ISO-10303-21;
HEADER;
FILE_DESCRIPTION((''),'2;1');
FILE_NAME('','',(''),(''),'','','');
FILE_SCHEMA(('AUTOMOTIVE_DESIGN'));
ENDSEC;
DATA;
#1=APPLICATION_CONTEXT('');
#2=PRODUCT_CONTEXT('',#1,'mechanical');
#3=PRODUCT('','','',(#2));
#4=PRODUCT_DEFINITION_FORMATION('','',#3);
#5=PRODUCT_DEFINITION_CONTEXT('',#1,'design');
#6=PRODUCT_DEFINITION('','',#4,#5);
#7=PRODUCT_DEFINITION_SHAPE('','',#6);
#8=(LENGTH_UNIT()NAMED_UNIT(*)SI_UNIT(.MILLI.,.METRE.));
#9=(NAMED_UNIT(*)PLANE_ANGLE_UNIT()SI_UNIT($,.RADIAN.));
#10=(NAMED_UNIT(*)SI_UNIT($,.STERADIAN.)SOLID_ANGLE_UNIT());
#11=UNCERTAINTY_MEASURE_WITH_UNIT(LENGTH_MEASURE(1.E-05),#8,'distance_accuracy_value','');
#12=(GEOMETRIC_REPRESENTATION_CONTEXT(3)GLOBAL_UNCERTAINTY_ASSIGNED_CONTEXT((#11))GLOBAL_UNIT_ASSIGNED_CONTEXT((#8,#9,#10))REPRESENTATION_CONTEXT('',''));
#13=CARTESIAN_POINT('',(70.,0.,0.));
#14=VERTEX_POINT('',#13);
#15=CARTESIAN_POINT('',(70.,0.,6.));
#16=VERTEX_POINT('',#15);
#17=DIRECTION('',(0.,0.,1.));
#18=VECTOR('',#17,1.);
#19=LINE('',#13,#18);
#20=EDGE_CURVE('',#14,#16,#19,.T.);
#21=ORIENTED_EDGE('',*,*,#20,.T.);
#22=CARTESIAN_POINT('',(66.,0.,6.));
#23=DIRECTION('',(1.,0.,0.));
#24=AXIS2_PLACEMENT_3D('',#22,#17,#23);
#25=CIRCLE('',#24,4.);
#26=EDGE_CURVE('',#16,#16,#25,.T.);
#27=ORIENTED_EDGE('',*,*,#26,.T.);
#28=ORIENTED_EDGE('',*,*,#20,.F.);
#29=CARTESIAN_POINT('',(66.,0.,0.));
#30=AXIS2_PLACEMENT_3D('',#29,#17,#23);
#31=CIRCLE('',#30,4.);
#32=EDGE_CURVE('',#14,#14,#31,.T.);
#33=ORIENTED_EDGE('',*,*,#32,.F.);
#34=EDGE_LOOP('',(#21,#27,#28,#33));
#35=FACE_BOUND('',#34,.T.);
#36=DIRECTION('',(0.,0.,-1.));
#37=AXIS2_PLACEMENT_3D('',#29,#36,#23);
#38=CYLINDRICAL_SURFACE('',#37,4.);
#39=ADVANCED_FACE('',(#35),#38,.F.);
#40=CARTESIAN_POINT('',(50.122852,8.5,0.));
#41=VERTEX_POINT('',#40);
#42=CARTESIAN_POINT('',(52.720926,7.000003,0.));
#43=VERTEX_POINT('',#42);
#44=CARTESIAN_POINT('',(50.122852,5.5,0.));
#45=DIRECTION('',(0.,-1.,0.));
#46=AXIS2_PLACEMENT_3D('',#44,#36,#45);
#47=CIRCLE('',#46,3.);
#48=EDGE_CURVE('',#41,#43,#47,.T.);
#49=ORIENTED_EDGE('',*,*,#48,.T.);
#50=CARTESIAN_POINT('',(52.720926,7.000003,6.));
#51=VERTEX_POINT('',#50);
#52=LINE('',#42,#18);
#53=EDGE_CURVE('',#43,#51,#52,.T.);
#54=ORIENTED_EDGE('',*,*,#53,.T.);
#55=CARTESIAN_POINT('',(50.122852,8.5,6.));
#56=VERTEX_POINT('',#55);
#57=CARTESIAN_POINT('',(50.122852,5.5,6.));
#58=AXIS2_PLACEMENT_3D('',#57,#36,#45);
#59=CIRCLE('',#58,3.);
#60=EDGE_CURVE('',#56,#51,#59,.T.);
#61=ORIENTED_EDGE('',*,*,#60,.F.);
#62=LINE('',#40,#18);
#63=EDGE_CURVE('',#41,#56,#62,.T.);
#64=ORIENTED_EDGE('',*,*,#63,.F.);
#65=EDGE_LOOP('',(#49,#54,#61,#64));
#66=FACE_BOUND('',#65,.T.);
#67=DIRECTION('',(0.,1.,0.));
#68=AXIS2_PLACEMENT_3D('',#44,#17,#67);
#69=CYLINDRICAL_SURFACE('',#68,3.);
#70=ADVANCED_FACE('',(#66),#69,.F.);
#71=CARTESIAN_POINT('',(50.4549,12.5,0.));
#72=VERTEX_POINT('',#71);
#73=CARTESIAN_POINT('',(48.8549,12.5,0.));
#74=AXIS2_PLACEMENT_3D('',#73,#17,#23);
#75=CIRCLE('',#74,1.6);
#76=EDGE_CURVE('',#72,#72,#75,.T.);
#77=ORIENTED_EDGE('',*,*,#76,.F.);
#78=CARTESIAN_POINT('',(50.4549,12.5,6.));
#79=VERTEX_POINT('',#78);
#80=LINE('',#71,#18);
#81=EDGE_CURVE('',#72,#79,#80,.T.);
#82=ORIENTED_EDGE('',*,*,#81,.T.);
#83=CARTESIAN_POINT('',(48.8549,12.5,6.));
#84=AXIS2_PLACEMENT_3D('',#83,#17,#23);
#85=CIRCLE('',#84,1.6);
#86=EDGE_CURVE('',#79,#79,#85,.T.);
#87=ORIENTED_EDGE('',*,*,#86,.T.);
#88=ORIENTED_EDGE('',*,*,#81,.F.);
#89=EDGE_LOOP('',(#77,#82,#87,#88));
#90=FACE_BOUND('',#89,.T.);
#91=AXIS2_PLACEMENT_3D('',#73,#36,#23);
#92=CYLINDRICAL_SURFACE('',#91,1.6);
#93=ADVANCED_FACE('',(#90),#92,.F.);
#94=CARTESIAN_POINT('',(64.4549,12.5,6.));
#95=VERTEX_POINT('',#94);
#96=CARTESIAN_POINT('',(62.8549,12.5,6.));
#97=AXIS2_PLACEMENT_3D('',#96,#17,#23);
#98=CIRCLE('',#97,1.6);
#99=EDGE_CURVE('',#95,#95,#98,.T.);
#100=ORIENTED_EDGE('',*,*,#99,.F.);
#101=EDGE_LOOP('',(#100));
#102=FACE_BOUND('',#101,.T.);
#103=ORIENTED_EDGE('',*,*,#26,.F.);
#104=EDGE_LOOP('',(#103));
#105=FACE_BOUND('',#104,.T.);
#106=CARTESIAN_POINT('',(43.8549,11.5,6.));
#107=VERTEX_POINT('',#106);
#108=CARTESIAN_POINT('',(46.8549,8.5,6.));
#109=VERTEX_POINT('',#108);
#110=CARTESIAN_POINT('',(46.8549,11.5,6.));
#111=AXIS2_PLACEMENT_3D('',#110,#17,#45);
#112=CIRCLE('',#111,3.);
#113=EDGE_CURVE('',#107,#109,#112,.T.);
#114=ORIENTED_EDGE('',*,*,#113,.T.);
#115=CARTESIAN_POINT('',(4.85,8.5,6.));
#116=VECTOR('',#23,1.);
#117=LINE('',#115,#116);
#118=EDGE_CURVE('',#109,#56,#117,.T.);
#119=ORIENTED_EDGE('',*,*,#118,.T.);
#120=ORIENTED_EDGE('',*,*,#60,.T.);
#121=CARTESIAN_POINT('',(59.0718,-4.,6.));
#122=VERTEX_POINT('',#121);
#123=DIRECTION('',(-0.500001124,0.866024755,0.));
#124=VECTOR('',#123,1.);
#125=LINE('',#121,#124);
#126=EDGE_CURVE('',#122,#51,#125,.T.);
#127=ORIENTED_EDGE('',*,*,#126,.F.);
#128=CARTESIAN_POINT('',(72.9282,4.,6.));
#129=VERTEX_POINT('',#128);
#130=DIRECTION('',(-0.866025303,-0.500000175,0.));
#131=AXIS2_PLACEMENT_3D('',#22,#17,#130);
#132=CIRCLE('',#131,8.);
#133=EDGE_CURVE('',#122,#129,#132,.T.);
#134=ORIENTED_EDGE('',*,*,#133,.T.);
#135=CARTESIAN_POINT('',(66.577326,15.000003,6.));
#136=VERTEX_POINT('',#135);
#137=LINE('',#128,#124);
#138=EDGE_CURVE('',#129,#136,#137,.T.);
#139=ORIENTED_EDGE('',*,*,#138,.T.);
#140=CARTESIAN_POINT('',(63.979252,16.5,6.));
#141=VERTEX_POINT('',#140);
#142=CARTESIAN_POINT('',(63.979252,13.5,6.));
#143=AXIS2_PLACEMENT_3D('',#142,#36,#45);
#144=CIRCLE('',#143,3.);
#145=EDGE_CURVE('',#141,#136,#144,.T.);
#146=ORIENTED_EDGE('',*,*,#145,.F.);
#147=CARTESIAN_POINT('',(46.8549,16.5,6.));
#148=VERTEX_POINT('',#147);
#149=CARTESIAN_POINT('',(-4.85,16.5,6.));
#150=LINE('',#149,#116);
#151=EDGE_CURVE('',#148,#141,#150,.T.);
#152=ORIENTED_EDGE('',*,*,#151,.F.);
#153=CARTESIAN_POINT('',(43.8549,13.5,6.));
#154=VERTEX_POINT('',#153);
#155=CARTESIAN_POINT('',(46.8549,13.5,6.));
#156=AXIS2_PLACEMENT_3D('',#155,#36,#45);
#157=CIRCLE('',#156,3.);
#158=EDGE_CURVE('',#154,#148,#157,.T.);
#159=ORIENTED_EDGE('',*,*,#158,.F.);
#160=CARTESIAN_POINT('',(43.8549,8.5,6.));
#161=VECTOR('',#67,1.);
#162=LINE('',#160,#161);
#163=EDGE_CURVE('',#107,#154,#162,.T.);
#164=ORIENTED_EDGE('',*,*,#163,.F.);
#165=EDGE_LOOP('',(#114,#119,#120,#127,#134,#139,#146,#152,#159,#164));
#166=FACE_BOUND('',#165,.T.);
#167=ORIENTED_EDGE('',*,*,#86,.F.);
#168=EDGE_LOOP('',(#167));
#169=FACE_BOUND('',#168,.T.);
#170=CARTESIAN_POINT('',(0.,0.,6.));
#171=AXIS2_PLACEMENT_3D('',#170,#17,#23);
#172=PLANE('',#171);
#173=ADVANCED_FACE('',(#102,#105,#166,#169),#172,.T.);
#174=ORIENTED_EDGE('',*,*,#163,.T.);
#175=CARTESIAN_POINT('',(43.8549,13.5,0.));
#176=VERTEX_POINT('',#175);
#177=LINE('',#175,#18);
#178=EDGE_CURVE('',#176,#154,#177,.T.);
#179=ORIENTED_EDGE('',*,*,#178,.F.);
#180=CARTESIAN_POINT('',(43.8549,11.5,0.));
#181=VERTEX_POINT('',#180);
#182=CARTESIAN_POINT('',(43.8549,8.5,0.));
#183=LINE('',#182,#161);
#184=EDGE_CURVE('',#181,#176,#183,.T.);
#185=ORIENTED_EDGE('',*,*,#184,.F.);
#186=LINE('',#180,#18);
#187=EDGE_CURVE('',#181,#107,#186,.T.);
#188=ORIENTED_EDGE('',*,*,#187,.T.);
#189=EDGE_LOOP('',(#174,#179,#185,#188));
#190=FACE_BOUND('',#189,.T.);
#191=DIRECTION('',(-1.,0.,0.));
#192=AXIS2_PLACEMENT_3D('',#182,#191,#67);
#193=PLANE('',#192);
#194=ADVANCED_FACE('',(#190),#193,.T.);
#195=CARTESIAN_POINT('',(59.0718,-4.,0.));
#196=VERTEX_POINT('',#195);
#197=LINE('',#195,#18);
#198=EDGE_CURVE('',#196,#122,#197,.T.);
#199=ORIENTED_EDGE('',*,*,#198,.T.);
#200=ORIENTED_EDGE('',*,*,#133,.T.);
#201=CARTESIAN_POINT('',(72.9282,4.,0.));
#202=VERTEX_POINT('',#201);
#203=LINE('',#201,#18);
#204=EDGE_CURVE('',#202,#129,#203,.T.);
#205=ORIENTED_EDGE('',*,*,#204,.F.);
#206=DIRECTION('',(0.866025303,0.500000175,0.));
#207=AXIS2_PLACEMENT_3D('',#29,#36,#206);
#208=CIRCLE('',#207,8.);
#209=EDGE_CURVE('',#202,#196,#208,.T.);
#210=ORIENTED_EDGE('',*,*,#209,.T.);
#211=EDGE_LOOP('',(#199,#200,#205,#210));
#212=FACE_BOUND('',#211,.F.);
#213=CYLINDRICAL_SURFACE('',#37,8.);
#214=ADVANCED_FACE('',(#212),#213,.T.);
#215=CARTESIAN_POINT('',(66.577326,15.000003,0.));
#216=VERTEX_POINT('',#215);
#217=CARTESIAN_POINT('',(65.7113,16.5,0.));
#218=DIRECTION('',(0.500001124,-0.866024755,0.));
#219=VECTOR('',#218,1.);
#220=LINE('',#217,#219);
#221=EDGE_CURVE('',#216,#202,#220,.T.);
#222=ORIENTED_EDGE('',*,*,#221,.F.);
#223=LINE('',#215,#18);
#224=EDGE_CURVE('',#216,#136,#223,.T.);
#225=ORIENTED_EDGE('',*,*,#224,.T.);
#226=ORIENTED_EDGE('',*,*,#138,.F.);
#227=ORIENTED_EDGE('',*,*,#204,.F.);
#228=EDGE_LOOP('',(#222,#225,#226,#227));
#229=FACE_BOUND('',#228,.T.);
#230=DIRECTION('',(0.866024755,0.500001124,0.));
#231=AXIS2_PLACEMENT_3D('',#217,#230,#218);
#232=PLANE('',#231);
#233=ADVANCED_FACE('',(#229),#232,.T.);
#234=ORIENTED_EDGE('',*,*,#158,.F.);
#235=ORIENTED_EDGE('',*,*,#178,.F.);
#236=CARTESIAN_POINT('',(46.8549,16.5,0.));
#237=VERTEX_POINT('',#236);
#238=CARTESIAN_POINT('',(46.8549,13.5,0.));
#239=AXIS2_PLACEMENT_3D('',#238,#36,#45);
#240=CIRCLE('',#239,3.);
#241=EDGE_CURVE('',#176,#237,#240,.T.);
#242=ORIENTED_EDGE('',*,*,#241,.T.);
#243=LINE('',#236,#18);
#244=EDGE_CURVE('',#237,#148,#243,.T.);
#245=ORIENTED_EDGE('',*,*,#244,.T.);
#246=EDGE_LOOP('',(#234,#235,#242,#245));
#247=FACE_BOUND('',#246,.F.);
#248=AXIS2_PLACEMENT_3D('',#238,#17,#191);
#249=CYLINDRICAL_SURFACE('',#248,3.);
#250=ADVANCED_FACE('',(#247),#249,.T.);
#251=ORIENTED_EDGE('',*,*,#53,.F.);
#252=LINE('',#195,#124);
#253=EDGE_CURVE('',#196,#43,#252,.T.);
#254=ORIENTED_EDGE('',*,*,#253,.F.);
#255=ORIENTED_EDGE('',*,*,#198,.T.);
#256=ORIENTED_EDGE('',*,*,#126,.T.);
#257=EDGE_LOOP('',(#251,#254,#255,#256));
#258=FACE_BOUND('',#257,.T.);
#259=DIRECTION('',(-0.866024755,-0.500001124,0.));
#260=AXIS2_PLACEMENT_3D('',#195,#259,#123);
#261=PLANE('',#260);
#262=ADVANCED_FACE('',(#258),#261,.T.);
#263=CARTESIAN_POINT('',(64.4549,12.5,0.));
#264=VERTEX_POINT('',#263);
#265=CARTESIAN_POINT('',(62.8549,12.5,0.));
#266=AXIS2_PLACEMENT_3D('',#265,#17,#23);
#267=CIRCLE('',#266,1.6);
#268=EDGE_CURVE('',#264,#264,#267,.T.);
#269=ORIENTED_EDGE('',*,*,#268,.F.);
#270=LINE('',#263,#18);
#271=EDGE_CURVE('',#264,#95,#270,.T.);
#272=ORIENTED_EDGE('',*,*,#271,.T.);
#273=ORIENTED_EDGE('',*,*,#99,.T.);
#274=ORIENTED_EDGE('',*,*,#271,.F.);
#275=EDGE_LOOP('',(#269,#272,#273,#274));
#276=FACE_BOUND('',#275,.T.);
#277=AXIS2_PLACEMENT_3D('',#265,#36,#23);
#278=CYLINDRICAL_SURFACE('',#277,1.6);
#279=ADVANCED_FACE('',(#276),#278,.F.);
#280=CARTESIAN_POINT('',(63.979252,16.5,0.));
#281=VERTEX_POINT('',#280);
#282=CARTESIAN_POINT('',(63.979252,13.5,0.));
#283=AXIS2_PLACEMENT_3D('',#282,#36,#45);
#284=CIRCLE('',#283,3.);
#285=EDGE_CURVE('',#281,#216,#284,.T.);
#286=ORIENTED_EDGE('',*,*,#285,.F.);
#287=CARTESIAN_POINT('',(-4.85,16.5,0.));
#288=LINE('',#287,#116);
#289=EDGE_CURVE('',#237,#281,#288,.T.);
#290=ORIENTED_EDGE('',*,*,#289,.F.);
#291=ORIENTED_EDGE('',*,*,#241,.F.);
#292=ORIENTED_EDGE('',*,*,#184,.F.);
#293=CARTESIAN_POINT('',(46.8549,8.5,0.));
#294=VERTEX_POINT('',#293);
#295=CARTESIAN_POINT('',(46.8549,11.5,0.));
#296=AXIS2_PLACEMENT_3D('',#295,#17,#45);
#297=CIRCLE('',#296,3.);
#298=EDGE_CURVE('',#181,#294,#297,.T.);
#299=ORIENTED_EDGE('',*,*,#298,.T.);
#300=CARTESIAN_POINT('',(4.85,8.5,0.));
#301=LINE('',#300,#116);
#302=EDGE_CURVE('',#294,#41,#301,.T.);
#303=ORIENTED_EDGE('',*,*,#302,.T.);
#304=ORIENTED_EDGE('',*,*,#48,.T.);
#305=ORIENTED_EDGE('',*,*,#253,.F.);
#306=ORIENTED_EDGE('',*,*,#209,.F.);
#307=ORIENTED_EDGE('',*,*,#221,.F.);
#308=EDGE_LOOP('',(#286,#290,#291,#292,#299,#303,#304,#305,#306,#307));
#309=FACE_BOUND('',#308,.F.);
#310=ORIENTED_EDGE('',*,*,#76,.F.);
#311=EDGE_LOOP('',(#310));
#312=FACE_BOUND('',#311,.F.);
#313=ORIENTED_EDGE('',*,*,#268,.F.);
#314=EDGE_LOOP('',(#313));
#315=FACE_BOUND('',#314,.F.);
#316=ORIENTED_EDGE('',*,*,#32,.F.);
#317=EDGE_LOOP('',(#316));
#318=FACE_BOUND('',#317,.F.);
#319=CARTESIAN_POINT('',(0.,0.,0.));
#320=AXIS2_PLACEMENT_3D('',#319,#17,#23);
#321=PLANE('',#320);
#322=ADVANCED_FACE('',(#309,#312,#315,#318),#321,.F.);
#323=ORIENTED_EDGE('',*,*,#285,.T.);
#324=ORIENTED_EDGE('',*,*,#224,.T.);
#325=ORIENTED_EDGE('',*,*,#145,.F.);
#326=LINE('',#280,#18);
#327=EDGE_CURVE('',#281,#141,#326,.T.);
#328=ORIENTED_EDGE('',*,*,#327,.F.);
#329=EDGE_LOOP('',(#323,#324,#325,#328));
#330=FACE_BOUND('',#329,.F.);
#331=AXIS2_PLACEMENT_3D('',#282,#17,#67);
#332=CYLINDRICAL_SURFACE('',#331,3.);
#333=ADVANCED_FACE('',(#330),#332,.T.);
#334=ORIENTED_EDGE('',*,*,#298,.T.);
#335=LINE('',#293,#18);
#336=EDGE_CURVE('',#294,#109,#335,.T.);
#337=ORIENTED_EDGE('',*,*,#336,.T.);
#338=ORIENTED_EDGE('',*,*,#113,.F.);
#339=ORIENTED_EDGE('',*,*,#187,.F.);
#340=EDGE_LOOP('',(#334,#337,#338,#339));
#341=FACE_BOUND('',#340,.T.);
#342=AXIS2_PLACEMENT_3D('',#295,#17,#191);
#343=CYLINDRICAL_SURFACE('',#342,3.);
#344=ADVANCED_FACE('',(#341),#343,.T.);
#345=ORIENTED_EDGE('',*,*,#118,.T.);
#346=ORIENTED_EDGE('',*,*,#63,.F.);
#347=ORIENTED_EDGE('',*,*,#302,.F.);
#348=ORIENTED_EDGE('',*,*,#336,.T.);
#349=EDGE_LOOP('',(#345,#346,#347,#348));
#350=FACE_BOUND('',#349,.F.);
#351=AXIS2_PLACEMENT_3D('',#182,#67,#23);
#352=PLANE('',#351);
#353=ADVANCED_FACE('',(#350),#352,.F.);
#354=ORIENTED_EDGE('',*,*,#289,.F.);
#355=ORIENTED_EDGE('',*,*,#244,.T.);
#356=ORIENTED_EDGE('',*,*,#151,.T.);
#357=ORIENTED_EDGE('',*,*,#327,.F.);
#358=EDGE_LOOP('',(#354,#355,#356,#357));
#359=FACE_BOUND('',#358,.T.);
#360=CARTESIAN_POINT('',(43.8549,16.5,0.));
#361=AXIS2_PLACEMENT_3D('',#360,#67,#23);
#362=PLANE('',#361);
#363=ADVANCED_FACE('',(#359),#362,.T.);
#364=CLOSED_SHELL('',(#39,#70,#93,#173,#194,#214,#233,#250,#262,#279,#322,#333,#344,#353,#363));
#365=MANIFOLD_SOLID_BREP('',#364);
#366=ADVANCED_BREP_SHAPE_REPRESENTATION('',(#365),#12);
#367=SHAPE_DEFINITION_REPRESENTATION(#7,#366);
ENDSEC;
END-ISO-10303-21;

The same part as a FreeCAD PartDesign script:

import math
import FreeCAD as App
import Part
import Sketcher
Q = App.Units.Quantity


def edges_at(feature, points):
    """Names of the edges that pass closest to the given points."""
    edges = feature.Shape.Edges
    near = lambda p: min(range(len(edges)), key=lambda i: edges[i].distToShape(Part.Vertex(*p))[0])
    return sorted({f"Edge{near(p) + 1}" for p in points})

doc = App.newDocument("Part")
params = doc.addObject("Spreadsheet::Sheet", "Params")
for row, (alias, value) in enumerate([
    ("sketch1_diameter", "8 mm"),
    ("sketch1_radius", "8 mm"),
    ("sketch1_diameter2", "3.2 mm"),
    ("sketch1_width", "8 mm"),
    ("pad1_length", "6 mm"),
    ("fillet_radius", "3 mm"),
], start=1):
    params.set(f"A{row}", alias)
    params.set(f"B{row}", "=" + value)
    params.setAlias(f"B{row}", alias)

body = doc.addObject("PartDesign::Body", "Body")

sketch1 = doc.addObject("Sketcher::SketchObject", "Sketch")
body.addObject(sketch1)
sketch1.AttachmentSupport = (doc.XY_Plane, [""])
sketch1.MapMode = "FlatFace"
sketch1.addGeometry([
    Part.LineSegment(App.Vector(43.9, 16.5, 0), App.Vector(43.9, 8.5, 0)),
    Part.LineSegment(App.Vector(43.9, 8.5, 0), App.Vector(51.9, 8.5, 0)),
    Part.LineSegment(App.Vector(51.9, 8.5, 0), App.Vector(59.1, -4, 0)),
    Part.ArcOfCircle(Part.Circle(App.Vector(66, 0, 0), App.Vector(0, 0, 1), 8), math.radians(-150), math.radians(30)),
    Part.LineSegment(App.Vector(72.9, 4, 0), App.Vector(65.7, 16.5, 0)),
    Part.LineSegment(App.Vector(65.7, 16.5, 0), App.Vector(43.9, 16.5, 0)),
    Part.Circle(App.Vector(48.9, 12.5, 0), App.Vector(0, 0, 1), 1.6),
    Part.Circle(App.Vector(62.9, 12.5, 0), App.Vector(0, 0, 1), 1.6),
    Part.Circle(App.Vector(66, 0, 0), App.Vector(0, 0, 1), 4),
], False)
sketch1.addConstraint([
    Sketcher.Constraint("Coincident", 0, 2, 1, 1),
    Sketcher.Constraint("Coincident", 1, 2, 2, 1),
    Sketcher.Constraint("Tangent", 2, 2, 3, 1),
    Sketcher.Constraint("Tangent", 3, 2, 4, 1),
    Sketcher.Constraint("Coincident", 4, 2, 5, 1),
    Sketcher.Constraint("Coincident", 5, 2, 0, 1),
    Sketcher.Constraint("Vertical", 0),
    Sketcher.Constraint("Horizontal", 1),
    Sketcher.Constraint("Horizontal", 5),
    Sketcher.Constraint("Coincident", 8, 3, 3, 3),
    Sketcher.Constraint("Equal", 6, 7),
    Sketcher.Constraint("PointOnObject", 3, 3, -1),
    Sketcher.Constraint("Parallel", 2, 4),
    Sketcher.Constraint("Horizontal", 6, 3, 7, 3),
    Sketcher.Constraint("Equal", 1, 0),
    Sketcher.Constraint("Equal", 2, 4),
    Sketcher.Constraint("Diameter", 8, Q("8 mm")),
    Sketcher.Constraint("Radius", 3, Q("8 mm")),
    Sketcher.Constraint("Diameter", 6, Q("3.2 mm")),
    Sketcher.Constraint("DistanceX", 1, 1, 1, 2, Q("8 mm")),
    Sketcher.Constraint("DistanceX", -1, 1, 3, 3, Q("66 mm")),
    Sketcher.Constraint("DistanceX", 6, 3, 7, 3, Q("14 mm")),
    Sketcher.Constraint("DistanceX", 0, 2, 6, 3, Q("5 mm")),
    Sketcher.Constraint("DistanceY", -1, 1, 0, 2, Q("8.5 mm")),
    Sketcher.Constraint("DistanceY", 3, 2, 7, 3, Q("8.5 mm")),
])
sketch1.setExpression("Constraints[16]", "Params.sketch1_diameter")
sketch1.setExpression("Constraints[17]", "Params.sketch1_radius")
sketch1.setExpression("Constraints[18]", "Params.sketch1_diameter2")
sketch1.setExpression("Constraints[19]", "Params.sketch1_width")
pad1 = doc.addObject("PartDesign::Pad", "Pad")
body.addObject(pad1)
pad1.Profile = sketch1
pad1.setExpression("Length", "Params.pad1_length")
doc.recompute()

fillet = doc.addObject("PartDesign::Fillet", "Fillet")
body.addObject(fillet)
fillet.Base = (pad1, edges_at(pad1, [
    (51.855, 8.5, 3),
    (65.711, 16.5, 3),
    (43.855, 16.5, 3),
    (43.855, 8.5, 3),
]))
fillet.setExpression("Radius", "Params.fillet_radius")

doc.recompute()
